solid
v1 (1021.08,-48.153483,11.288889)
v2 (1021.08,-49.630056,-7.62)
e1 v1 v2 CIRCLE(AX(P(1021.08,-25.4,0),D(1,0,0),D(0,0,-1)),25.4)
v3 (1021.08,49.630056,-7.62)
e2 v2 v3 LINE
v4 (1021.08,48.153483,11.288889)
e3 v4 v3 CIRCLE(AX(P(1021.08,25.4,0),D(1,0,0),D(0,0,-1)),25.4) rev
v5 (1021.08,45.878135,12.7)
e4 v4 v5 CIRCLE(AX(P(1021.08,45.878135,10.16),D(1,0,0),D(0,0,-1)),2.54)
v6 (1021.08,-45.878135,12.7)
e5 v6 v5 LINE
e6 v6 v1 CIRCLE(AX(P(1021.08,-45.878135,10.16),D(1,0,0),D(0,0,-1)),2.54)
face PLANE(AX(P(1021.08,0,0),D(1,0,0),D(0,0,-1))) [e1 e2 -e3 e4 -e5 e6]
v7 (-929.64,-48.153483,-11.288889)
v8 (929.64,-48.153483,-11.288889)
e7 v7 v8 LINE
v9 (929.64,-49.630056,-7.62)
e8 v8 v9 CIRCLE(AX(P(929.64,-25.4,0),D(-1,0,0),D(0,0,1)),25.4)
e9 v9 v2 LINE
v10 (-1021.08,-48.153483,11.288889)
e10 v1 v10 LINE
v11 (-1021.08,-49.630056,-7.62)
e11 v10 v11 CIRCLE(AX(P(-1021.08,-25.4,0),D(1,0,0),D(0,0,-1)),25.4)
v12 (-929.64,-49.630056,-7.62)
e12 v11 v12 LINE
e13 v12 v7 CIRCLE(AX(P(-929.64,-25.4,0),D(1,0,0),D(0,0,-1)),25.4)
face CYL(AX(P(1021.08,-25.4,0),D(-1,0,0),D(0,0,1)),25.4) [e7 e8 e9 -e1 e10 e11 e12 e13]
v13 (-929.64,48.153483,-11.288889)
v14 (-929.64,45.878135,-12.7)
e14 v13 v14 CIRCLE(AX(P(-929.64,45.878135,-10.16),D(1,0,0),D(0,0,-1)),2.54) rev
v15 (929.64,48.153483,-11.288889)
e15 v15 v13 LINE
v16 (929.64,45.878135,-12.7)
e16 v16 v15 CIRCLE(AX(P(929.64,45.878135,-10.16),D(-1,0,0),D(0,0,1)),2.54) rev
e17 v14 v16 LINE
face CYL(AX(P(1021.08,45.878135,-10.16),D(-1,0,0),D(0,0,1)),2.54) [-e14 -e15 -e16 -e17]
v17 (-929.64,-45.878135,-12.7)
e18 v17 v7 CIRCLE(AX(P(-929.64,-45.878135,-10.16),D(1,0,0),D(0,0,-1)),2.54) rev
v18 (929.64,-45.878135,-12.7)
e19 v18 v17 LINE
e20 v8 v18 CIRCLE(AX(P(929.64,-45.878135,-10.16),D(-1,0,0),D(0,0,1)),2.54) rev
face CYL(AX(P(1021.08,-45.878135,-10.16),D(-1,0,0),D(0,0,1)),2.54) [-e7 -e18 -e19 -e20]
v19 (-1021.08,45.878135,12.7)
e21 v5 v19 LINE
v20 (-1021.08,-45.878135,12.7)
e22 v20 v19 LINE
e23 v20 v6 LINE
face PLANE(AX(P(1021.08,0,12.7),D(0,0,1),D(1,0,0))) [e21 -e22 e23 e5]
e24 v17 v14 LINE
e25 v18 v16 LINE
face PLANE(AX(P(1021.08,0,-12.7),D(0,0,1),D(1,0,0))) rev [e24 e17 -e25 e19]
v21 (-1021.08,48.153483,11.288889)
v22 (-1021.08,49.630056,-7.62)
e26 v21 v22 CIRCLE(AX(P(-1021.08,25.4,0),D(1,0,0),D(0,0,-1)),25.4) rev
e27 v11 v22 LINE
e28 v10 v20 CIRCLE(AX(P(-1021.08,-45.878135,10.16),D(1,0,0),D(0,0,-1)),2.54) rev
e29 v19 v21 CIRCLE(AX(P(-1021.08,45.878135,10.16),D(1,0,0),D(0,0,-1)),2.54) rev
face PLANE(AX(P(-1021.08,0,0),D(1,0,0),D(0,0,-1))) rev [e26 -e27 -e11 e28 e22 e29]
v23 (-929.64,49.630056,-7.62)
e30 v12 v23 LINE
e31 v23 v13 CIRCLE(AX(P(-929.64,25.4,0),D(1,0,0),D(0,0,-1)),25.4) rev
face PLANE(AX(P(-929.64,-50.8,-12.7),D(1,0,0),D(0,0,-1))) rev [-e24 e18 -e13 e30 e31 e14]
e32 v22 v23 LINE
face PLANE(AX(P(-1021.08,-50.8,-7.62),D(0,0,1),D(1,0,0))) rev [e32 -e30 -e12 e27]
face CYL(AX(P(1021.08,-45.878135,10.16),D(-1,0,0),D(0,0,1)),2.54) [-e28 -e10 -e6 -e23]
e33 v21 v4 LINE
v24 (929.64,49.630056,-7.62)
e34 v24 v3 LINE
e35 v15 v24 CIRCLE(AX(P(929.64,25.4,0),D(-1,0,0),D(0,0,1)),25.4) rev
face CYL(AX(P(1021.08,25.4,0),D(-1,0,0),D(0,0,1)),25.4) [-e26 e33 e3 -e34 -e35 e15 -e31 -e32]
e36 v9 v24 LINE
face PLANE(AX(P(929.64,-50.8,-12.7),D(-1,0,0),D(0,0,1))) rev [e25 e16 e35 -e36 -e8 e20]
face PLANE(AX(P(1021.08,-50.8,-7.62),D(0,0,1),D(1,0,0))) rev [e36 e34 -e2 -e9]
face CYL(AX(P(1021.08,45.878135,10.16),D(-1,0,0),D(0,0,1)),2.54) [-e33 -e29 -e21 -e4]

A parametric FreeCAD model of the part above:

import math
import FreeCAD as App
import Part
import Sketcher
Q = App.Units.Quantity


def edges_at(feature, points):
    """Names of the edges that pass closest to the given points."""
    edges = feature.Shape.Edges
    near = lambda p: min(range(len(edges)), key=lambda i: edges[i].distToShape(Part.Vertex(*p))[0])
    return sorted({f"Edge{near(p) + 1}" for p in points})


def add_polygon(sketch, points):
    """Adds a closed chain of lines whose ends are joined by coincident constraints."""
    first, n = sketch.GeometryCount, len(points)
    for a, b in zip(points, points[1:] + points[:1]):
        sketch.addGeometry(Part.LineSegment(App.Vector(*a, 0), App.Vector(*b, 0)), False)
    for i in range(n):
        sketch.addConstraint(Sketcher.Constraint("Coincident", first + i, 2, first + (i + 1) % n, 1))

doc = App.newDocument("Part")
body = doc.addObject("PartDesign::Body", "Body")

# Sketch on YZ plane
sketch1 = body.newObject("Sketcher::SketchObject", "Sketch")
sketch1.AttachmentSupport = (doc.getObject("YZ_Plane"), [""])
sketch1.MapMode = "FlatFace"
sketch1.addGeometry(Part.ArcOfCircle(Part.Circle(App.Vector(-25, 0, 0), App.Vector(0, 0, 1), 25), math.radians(150), math.radians(180)), False)
sketch1.addGeometry(Part.ArcOfCircle(Part.Circle(App.Vector(-25, 0, 0), App.Vector(0, 0, 1), 25), math.radians(180), math.radians(210)), False)
sketch1.addGeometry(Part.LineSegment(App.Vector(-47, -13, 0), App.Vector(47, -13, 0)), False)
sketch1.addGeometry(Part.ArcOfCircle(Part.Circle(App.Vector(25, 0, 0), App.Vector(0, 0, 1), 25), math.radians(-30), math.radians(0)), False)
sketch1.addGeometry(Part.ArcOfCircle(Part.Circle(App.Vector(25, 0, 0), App.Vector(0, 0, 1), 25), math.radians(0), math.radians(30)), False)
sketch1.addGeometry(Part.LineSegment(App.Vector(47, 13, 0), App.Vector(-47, 13, 0)), False)
sketch1.addConstraint(Sketcher.Constraint("Tangent", 0, 2, 1, 1))
sketch1.addConstraint(Sketcher.Constraint("Coincident", 1, 2, 2, 1))
sketch1.addConstraint(Sketcher.Constraint("Coincident", 2, 2, 3, 1))
sketch1.addConstraint(Sketcher.Constraint("Tangent", 3, 2, 4, 1))
sketch1.addConstraint(Sketcher.Constraint("Coincident", 4, 2, 5, 1))
sketch1.addConstraint(Sketcher.Constraint("Coincident", 5, 2, 0, 1))
sketch1.addConstraint(Sketcher.Constraint("Horizontal", 2))
sketch1.addConstraint(Sketcher.Constraint("Horizontal", 5))
sketch1.addConstraint(Sketcher.Constraint("Equal", 0, 1))
sketch1.addConstraint(Sketcher.Constraint("Equal", 1, 3))
sketch1.addConstraint(Sketcher.Constraint("Equal", 3, 4))
sketch1.addConstraint(Sketcher.Constraint("Symmetric", 0, 3, 3, 3, -1, 1))
sketch1.addConstraint(Sketcher.Constraint("Symmetric", 2, 2, 4, 2, -1))
sketch1.addConstraint(Sketcher.Constraint("PointOnObject", 0, 2, -1))
sketch1.addConstraint(Sketcher.Constraint("PointOnObject", 3, 2, -1))
sketch1.addConstraint(Sketcher.Constraint("Radius", 0, Q("1 in")))
sketch1.addConstraint(Sketcher.Constraint("DistanceX", 0, 3, -1, 1, Q("1 in")))
sketch1.addConstraint(Sketcher.Constraint("DistanceY", 2, 2, 4, 2, Q("1 in")))
pad1 = body.newObject("PartDesign::Pad", "Pad")
pad1.Profile = sketch1
pad1.Length = Q("80.4 in")
pad1.Midplane = True
doc.recompute()

fillet = body.newObject("PartDesign::Fillet", "Fillet")
fillet.Base = (pad1, edges_at(pad1, [
    (0, 47.397, 12.7),
    (0, 47.397, -12.7),
    (0, -47.397, -12.7),
    (0, -47.397, 12.7),
]))
fillet.Radius = Q("0.1 in")

# Sketch on XZ plane
sketch2 = body.newObject("Sketcher::SketchObject", "Sketch001")
sketch2.AttachmentSupport = (doc.getObject("XZ_Plane"), [""])
sketch2.MapMode = "FlatFace"
add_polygon(sketch2, [(930, -13), (930, -8), (1021, -8), (1021, -13)])  # lines 0-3
add_polygon(sketch2, [(-1021, -13), (-1021, -8), (-930, -8), (-930, -13)])  # lines 4-7
sketch2.addConstraint(Sketcher.Constraint("Vertical", 0))
sketch2.addConstraint(Sketcher.Constraint("Horizontal", 1))
sketch2.addConstraint(Sketcher.Constraint("Vertical", 2))
sketch2.addConstraint(Sketcher.Constraint("Horizontal", 3))
sketch2.addConstraint(Sketcher.Constraint("Vertical", 4))
sketch2.addConstraint(Sketcher.Constraint("Horizontal", 5))
sketch2.addConstraint(Sketcher.Constraint("Vertical", 6))
sketch2.addConstraint(Sketcher.Constraint("Horizontal", 7))
sketch2.addConstraint(Sketcher.Constraint("Symmetric", 1, 2, 4, 2, -2))
sketch2.addConstraint(Sketcher.Constraint("Symmetric", 3, 2, 6, 2, -2))
sketch2.addConstraint(Sketcher.Constraint("DistanceX", 1, 1, 1, 2, Q("3.6 in")))
sketch2.addConstraint(Sketcher.Constraint("DistanceY", 0, 1, 0, 2, Q("0.2 in")))
sketch2.addConstraint(Sketcher.Constraint("DistanceX", -1, 1, 0, 2, Q("36.6 in")))
sketch2.addConstraint(Sketcher.Constraint("DistanceY", 0, 2, -1, 1, Q("0.3 in")))
pocket1 = body.newObject("PartDesign::Pocket", "Pocket")
pocket1.Profile = sketch2
pocket1.Type = "ThroughAll"
pocket1.Midplane = True

doc.recompute()
